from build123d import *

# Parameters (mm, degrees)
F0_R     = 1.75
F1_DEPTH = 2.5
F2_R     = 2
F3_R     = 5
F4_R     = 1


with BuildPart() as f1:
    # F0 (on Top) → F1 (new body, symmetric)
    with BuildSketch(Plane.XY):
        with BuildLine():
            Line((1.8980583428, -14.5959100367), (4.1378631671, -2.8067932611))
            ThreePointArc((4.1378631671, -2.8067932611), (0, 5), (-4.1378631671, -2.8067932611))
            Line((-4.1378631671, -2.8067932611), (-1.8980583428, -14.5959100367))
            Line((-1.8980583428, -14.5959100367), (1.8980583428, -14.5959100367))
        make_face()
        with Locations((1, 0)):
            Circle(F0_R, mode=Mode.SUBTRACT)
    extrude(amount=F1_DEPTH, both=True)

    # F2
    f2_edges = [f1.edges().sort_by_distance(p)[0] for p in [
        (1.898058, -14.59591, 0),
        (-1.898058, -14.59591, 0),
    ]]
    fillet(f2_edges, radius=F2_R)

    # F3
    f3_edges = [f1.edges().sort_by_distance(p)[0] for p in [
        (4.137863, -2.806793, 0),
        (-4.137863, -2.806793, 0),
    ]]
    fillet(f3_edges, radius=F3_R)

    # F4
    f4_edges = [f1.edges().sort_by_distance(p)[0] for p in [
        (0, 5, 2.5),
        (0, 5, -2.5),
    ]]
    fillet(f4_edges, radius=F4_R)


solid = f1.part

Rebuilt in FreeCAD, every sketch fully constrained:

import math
import FreeCAD as App
import Part
import Sketcher

V = App.Vector
Q = App.Units.Quantity


def edges_at(feature, points):
    """Names of the edges that pass closest to the given points."""
    edges = feature.Shape.Edges
    near = lambda p: min(range(len(edges)), key=lambda i: edges[i].distToShape(Part.Vertex(*p))[0])
    return sorted({f"Edge{near(p) + 1}" for p in points})

doc = App.newDocument("Part")
params = doc.addObject("Spreadsheet::Sheet", "Params")
for row, (alias, value) in enumerate([
    ("sketch1_radius", "5 mm"),
    ("sketch1_diameter", "3.5 mm"),
    ("sketch1_length", "12 mm"),
    ("pad1_length", "5 mm"),
    ("fillet_radius", "2 mm"),
    ("fillet2_radius", "5 mm"),
    ("fillet3_radius", "1 mm"),
], start=1):
    params.set(f"A{row}", alias)
    params.set(f"B{row}", "=" + value)
    params.setAlias(f"B{row}", alias)

body = doc.addObject("PartDesign::Body", "Body")

# Sketch on XY plane
sketch1 = body.newObject("Sketcher::SketchObject", "Sketch")
sketch1.AttachmentSupport = (doc.getObject("XY_Plane"), [""])
sketch1.MapMode = "FlatFace"
sketch1.addGeometry(Part.LineSegment(V(1.898058, -14.59591, 0), V(4.137863, -2.806793, 0)), False)
sketch1.addGeometry(Part.ArcOfCircle(Part.Circle(V(0, 0, 0), V(0, 0, 1), 5), math.radians(-34.14981), math.radians(214.14981)), False)
sketch1.addGeometry(Part.LineSegment(V(-4.137863, -2.806793, 0), V(-1.898058, -14.59591, 0)), False)
sketch1.addGeometry(Part.LineSegment(V(-1.898058, -14.59591, 0), V(1.898058, -14.59591, 0)), False)
sketch1.addGeometry(Part.Circle(V(1, 0, 0), V(0, 0, 1), 1.75), False)
sketch1.addConstraint(Sketcher.Constraint("Coincident", 0, 2, 1, 1))
sketch1.addConstraint(Sketcher.Constraint("Coincident", 1, 2, 2, 1))
sketch1.addConstraint(Sketcher.Constraint("Coincident", 2, 2, 3, 1))
sketch1.addConstraint(Sketcher.Constraint("Coincident", 3, 2, 0, 1))
sketch1.addConstraint(Sketcher.Constraint("Horizontal", 3))
sketch1.addConstraint(Sketcher.Constraint("Coincident", 1, 3, -1, 1))
sketch1.addConstraint(Sketcher.Constraint("PointOnObject", 4, 3, -1))
sketch1.addConstraint(Sketcher.Constraint("Horizontal", 0, 2, 1, 2))
sketch1.addConstraint(Sketcher.Constraint("Equal", 0, 2))
sketch1.addConstraint(Sketcher.Constraint("Radius", 1, Q("5 mm")))
sketch1.addConstraint(Sketcher.Constraint("Diameter", 4, Q("3.5 mm")))
sketch1.addConstraint(Sketcher.Constraint("Distance", 0, Q("12 mm")))
sketch1.addConstraint(Sketcher.Constraint("DistanceX", -1, 1, 4, 3, Q("1 mm")))
sketch1.addConstraint(Sketcher.Constraint("DistanceX", 3, 1, 3, 2, Q("3.796117 mm")))
sketch1.addConstraint(Sketcher.Constraint("DistanceY", 2, 2, -1, 1, Q("14.59591 mm")))
sketch1.setExpression("Constraints[9]", "Params.sketch1_radius")
sketch1.setExpression("Constraints[10]", "Params.sketch1_diameter")
sketch1.setExpression("Constraints[11]", "Params.sketch1_length")
pad1 = body.newObject("PartDesign::Pad", "Pad")
pad1.Profile = sketch1
pad1.setExpression("Length", "Params.pad1_length")
pad1.Midplane = True
doc.recompute()

fillet = body.newObject("PartDesign::Fillet", "Fillet")
fillet.Base = (pad1, edges_at(pad1, [(1.898, -14.596, 0), (-1.898, -14.596, 0)]))
fillet.setExpression("Radius", "Params.fillet_radius")
doc.recompute()

fillet2 = body.newObject("PartDesign::Fillet", "Fillet001")
fillet2.Base = (fillet, edges_at(fillet, [(4.138, -2.807, 0), (-4.138, -2.807, 0)]))
fillet2.setExpression("Radius", "Params.fillet2_radius")
doc.recompute()

fillet3 = body.newObject("PartDesign::Fillet", "Fillet002")
fillet3.Base = (fillet2, edges_at(fillet2, [(0, 5, 2.5), (0, 5, -2.5)]))
fillet3.setExpression("Radius", "Params.fillet3_radius")

doc.recompute()
